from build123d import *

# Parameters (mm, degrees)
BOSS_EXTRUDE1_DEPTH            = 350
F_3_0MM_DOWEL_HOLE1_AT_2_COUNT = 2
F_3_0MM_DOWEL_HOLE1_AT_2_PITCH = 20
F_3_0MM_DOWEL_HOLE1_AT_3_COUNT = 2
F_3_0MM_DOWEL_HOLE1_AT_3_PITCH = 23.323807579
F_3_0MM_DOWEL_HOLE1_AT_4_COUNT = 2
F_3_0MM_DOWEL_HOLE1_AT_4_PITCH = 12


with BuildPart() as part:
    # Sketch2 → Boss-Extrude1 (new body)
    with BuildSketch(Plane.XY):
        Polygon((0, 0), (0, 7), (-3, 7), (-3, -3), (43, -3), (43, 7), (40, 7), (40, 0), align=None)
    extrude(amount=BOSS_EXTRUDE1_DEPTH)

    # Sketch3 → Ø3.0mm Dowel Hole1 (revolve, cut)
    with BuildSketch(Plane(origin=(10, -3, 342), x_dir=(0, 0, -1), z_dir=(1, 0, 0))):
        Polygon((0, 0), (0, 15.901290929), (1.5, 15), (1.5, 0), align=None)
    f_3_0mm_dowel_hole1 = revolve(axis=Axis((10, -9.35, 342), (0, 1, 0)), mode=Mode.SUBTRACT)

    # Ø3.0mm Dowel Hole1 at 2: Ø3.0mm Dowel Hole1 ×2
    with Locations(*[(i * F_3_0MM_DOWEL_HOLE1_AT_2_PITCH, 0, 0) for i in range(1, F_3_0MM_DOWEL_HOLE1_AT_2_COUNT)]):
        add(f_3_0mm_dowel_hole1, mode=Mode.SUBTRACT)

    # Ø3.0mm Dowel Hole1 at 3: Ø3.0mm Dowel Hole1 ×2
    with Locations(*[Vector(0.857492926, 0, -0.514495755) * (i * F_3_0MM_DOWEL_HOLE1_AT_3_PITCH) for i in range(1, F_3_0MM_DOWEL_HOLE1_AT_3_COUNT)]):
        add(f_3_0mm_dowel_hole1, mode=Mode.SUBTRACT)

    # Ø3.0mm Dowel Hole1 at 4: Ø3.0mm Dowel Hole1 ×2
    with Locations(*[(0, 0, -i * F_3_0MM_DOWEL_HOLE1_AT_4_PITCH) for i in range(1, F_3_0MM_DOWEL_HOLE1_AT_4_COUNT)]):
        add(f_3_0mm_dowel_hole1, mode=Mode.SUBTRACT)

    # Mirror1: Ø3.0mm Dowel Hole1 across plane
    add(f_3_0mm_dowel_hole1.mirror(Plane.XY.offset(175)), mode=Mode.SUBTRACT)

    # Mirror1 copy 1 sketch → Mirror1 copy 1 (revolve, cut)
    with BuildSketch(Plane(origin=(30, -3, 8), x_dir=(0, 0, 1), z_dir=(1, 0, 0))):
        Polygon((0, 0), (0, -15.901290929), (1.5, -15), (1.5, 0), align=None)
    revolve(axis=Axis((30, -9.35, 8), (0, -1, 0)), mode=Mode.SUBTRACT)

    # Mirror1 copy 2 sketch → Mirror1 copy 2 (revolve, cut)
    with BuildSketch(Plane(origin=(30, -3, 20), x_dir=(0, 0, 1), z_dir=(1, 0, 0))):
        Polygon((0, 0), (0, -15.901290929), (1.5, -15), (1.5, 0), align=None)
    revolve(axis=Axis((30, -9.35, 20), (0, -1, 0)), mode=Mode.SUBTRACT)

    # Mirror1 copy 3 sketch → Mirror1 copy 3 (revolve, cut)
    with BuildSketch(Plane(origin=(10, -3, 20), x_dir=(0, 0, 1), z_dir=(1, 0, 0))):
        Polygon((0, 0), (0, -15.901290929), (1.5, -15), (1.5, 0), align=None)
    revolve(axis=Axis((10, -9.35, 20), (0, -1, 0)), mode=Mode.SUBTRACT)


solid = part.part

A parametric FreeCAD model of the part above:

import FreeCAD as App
import Part
import Sketcher
Q = App.Units.Quantity

doc = App.newDocument("Part")
body = doc.addObject("PartDesign::Body", "Body")

# Sketch on XY plane
sketch1 = body.newObject("Sketcher::SketchObject", "Sketch")
sketch1.AttachmentSupport = (doc.getObject("XY_Plane"), [""])
sketch1.MapMode = "FlatFace"
sketch1.addGeometry([
    Part.LineSegment(App.Vector(0, 0, 0), App.Vector(0, 7, 0)),  # 0
    Part.LineSegment(App.Vector(0, 7, 0), App.Vector(-3, 7, 0)),  # 1
    Part.LineSegment(App.Vector(-3, 7, 0), App.Vector(-3, -3, 0)),  # 2
    Part.LineSegment(App.Vector(-3, -3, 0), App.Vector(43, -3, 0)),  # 3
    Part.LineSegment(App.Vector(43, -3, 0), App.Vector(43, 7, 0)),  # 4
    Part.LineSegment(App.Vector(43, 7, 0), App.Vector(40, 7, 0)),  # 5
    Part.LineSegment(App.Vector(40, 7, 0), App.Vector(40, 0, 0)),  # 6
    Part.LineSegment(App.Vector(40, 0, 0), App.Vector(0, 0, 0)),  # 7
], False)
sketch1.addConstraint([
    Sketcher.Constraint("Coincident", 0, 2, 1, 1),
    Sketcher.Constraint("Coincident", 1, 2, 2, 1),
    Sketcher.Constraint("Coincident", 2, 2, 3, 1),
    Sketcher.Constraint("Coincident", 3, 2, 4, 1),
    Sketcher.Constraint("Coincident", 4, 2, 5, 1),
    Sketcher.Constraint("Coincident", 5, 2, 6, 1),
    Sketcher.Constraint("Coincident", 6, 2, 7, 1),
    Sketcher.Constraint("Coincident", 7, 2, 0, 1),
    Sketcher.Constraint("Vertical", 0),
    Sketcher.Constraint("Horizontal", 1),
    Sketcher.Constraint("Vertical", 2),
    Sketcher.Constraint("Horizontal", 3),
    Sketcher.Constraint("Vertical", 4),
    Sketcher.Constraint("Horizontal", 5),
    Sketcher.Constraint("Vertical", 6),
    Sketcher.Constraint("Horizontal", 7),
    Sketcher.Constraint("Coincident", 7, 2, -1, 1),
    Sketcher.Constraint("Horizontal", 1, 2, 4, 2),
    Sketcher.Constraint("Equal", 1, 5),
    Sketcher.Constraint("DistanceX", 1, 2, 1, 1, Q("3 mm")),
    Sketcher.Constraint("DistanceX", 3, 1, 3, 2, Q("46 mm")),
    Sketcher.Constraint("DistanceY", 0, 1, 0, 2, Q("7 mm")),
    Sketcher.Constraint("DistanceY", 2, 2, 2, 1, Q("10 mm")),
])
pad1 = body.newObject("PartDesign::Pad", "Pad")
pad1.Profile = sketch1
pad1.Length = 350

# Sketch on YZ plane
sketch2 = body.newObject("Sketcher::SketchObject", "Sketch001")
sketch2.AttachmentSupport = (doc.getObject("YZ_Plane"), [""])
sketch2.MapMode = "FlatFace"
sketch2.AttachmentOffset = App.Placement(App.Vector(0, 0, 10), App.Rotation())
sketch2.addGeometry([
    Part.LineSegment(App.Vector(12.9, 342, 0), App.Vector(-3, 342, 0)),
    Part.LineSegment(App.Vector(-3, 342, 0), App.Vector(-3, 340.5, 0)),
    Part.LineSegment(App.Vector(-3, 340.5, 0), App.Vector(12, 340.5, 0)),
    Part.LineSegment(App.Vector(12, 340.5, 0), App.Vector(12.9, 342, 0)),
], False)
sketch2.addGeometry(Part.LineSegment(App.Vector(-3, 342, 0), App.Vector(12.9, 342, 0)), True)  # axis
sketch2.addConstraint([
    Sketcher.Constraint("Coincident", 0, 2, 1, 1),
    Sketcher.Constraint("Coincident", 1, 2, 2, 1),
    Sketcher.Constraint("Coincident", 2, 2, 3, 1),
    Sketcher.Constraint("Coincident", 3, 2, 0, 1),
    Sketcher.Constraint("Horizontal", 0),
    Sketcher.Constraint("Vertical", 1),
    Sketcher.Constraint("Horizontal", 2),
    Sketcher.Constraint("Horizontal", 4),
    Sketcher.Constraint("Coincident", 4, 1, 0, 2),
    Sketcher.Constraint("Equal", 0, 4),
    Sketcher.Constraint("DistanceX", 2, 1, 2, 2, Q("15 mm")),
    Sketcher.Constraint("Angle", 3, Q("59 deg")),
    Sketcher.Constraint("DistanceY", 1, 2, 1, 1, Q("1.5 mm")),
    Sketcher.Constraint("DistanceX", 0, 2, -1, 1, Q("3 mm")),
    Sketcher.Constraint("DistanceY", -1, 1, 0, 2, Q("342 mm")),
])
groove = body.newObject("PartDesign::Groove", "Groove")
groove.Profile = sketch2
groove.ReferenceAxis = (sketch2, ["Axis0"])
groove.Angle = 360
doc.recompute()

linearpattern = body.newObject("PartDesign::LinearPattern", "LinearPattern")
linearpattern.Originals = [groove]
linearpattern.Direction = (doc.getObject("X_Axis"), [""])
linearpattern.Mode = "offset"
linearpattern.Offset = 20
linearpattern.Occurrences = 2
body.Tip = linearpattern
doc.recompute()

datumline = body.newObject("PartDesign::Line", "DatumLine")
datumline.Placement = App.Placement(App.Vector(0, 0, 0), App.Rotation(App.Vector(0, 0, 1), App.Vector(0.857492926, 0, -0.514495755)))
linearpattern2 = body.newObject("PartDesign::LinearPattern", "LinearPattern001")
linearpattern2.Originals = [groove]
linearpattern2.Direction = (datumline, [""])
linearpattern2.Mode = "offset"
linearpattern2.Offset = 23.323808
linearpattern2.Occurrences = 2
body.Tip = linearpattern2
doc.recompute()

linearpattern3 = body.newObject("PartDesign::LinearPattern", "LinearPattern002")
linearpattern3.Originals = [groove]
linearpattern3.Direction = (doc.getObject("Z_Axis"), [""])
linearpattern3.Mode = "offset"
linearpattern3.Offset = 12
linearpattern3.Occurrences = 2
linearpattern3.Reversed = True
body.Tip = linearpattern3
doc.recompute()

datumplane = body.newObject("PartDesign::Plane", "DatumPlane")
datumplane.AttachmentSupport = (doc.getObject("XY_Plane"), [""])
datumplane.MapMode = "FlatFace"
datumplane.AttachmentOffset = App.Placement(App.Vector(0, 0, 175), App.Rotation())
mirrored = body.newObject("PartDesign::Mirrored", "Mirrored")
mirrored.Originals = [groove]
mirrored.MirrorPlane = (datumplane, [""])
body.Tip = mirrored

# Sketch on YZ plane
sketch3 = body.newObject("Sketcher::SketchObject", "Sketch002")
sketch3.AttachmentSupport = (doc.getObject("YZ_Plane"), [""])
sketch3.MapMode = "FlatFace"
sketch3.AttachmentOffset = App.Placement(App.Vector(0, 0, 30), App.Rotation())
sketch3.addGeometry([
    Part.LineSegment(App.Vector(-3, 8, 0), App.Vector(12.9, 8, 0)),
    Part.LineSegment(App.Vector(12.9, 8, 0), App.Vector(12, 9.5, 0)),
    Part.LineSegment(App.Vector(12, 9.5, 0), App.Vector(-3, 9.5, 0)),
    Part.LineSegment(App.Vector(-3, 9.5, 0), App.Vector(-3, 8, 0)),
], False)
sketch3.addGeometry(Part.LineSegment(App.Vector(12.9, 8, 0), App.Vector(-3, 8, 0)), True)  # axis
sketch3.addConstraint([
    Sketcher.Constraint("Coincident", 0, 2, 1, 1),
    Sketcher.Constraint("Coincident", 1, 2, 2, 1),
    Sketcher.Constraint("Coincident", 2, 2, 3, 1),
    Sketcher.Constraint("Coincident", 3, 2, 0, 1),
    Sketcher.Constraint("Horizontal", 0),
    Sketcher.Constraint("Horizontal", 2),
    Sketcher.Constraint("Vertical", 3),
    Sketcher.Constraint("Horizontal", 4),
    Sketcher.Constraint("Coincident", 4, 1, 0, 2),
    Sketcher.Constraint("Vertical", 2, 2, 4, 2),
    Sketcher.Constraint("DistanceX", 2, 2, 2, 1, Q("15 mm")),
    Sketcher.Constraint("Angle", 1, Q("121 deg")),
    Sketcher.Constraint("DistanceY", 3, 2, 3, 1, Q("1.5 mm")),
    Sketcher.Constraint("DistanceY", -1, 1, 0, 2, Q("8 mm")),
    Sketcher.Constraint("DistanceX", -1, 1, 1, 2, Q("12 mm")),
])
groove2 = body.newObject("PartDesign::Groove", "Groove001")
groove2.Profile = sketch3
groove2.ReferenceAxis = (sketch3, ["Axis0"])
groove2.Angle = 360

# Sketch on YZ plane
sketch4 = body.newObject("Sketcher::SketchObject", "Sketch003")
sketch4.AttachmentSupport = (doc.getObject("YZ_Plane"), [""])
sketch4.MapMode = "FlatFace"
sketch4.AttachmentOffset = App.Placement(App.Vector(0, 0, 30), App.Rotation())
sketch4.addGeometry([
    Part.LineSegment(App.Vector(-3, 20, 0), App.Vector(12.9, 20, 0)),
    Part.LineSegment(App.Vector(12.9, 20, 0), App.Vector(12, 21.5, 0)),
    Part.LineSegment(App.Vector(12, 21.5, 0), App.Vector(-3, 21.5, 0)),
    Part.LineSegment(App.Vector(-3, 21.5, 0), App.Vector(-3, 20, 0)),
], False)
sketch4.addGeometry(Part.LineSegment(App.Vector(12.9, 20, 0), App.Vector(-3, 20, 0)), True)  # axis
sketch4.addConstraint([
    Sketcher.Constraint("Coincident", 0, 2, 1, 1),
    Sketcher.Constraint("Coincident", 1, 2, 2, 1),
    Sketcher.Constraint("Coincident", 2, 2, 3, 1),
    Sketcher.Constraint("Coincident", 3, 2, 0, 1),
    Sketcher.Constraint("Horizontal", 0),
    Sketcher.Constraint("Horizontal", 2),
    Sketcher.Constraint("Vertical", 3),
    Sketcher.Constraint("Horizontal", 4),
    Sketcher.Constraint("Coincident", 4, 1, 0, 2),
    Sketcher.Constraint("Vertical", 2, 2, 4, 2),
    Sketcher.Constraint("DistanceX", 2, 2, 2, 1, Q("15 mm")),
    Sketcher.Constraint("Angle", 1, Q("121 deg")),
    Sketcher.Constraint("DistanceY", 3, 2, 3, 1, Q("1.5 mm")),
    Sketcher.Constraint("DistanceY", -1, 1, 0, 2, Q("20 mm")),
    Sketcher.Constraint("DistanceX", -1, 1, 1, 2, Q("12 mm")),
])
groove3 = body.newObject("PartDesign::Groove", "Groove002")
groove3.Profile = sketch4
groove3.ReferenceAxis = (sketch4, ["Axis0"])
groove3.Angle = 360

# Sketch on YZ plane
sketch5 = body.newObject("Sketcher::SketchObject", "Sketch004")
sketch5.AttachmentSupport = (doc.getObject("YZ_Plane"), [""])
sketch5.MapMode = "FlatFace"
sketch5.AttachmentOffset = App.Placement(App.Vector(0, 0, 10), App.Rotation())
sketch5.addGeometry([
    Part.LineSegment(App.Vector(-3, 20, 0), App.Vector(12.9, 20, 0)),
    Part.LineSegment(App.Vector(12.9, 20, 0), App.Vector(12, 21.5, 0)),
    Part.LineSegment(App.Vector(12, 21.5, 0), App.Vector(-3, 21.5, 0)),
    Part.LineSegment(App.Vector(-3, 21.5, 0), App.Vector(-3, 20, 0)),
], False)
sketch5.addGeometry(Part.LineSegment(App.Vector(12.9, 20, 0), App.Vector(-3, 20, 0)), True)  # axis
sketch5.addConstraint([
    Sketcher.Constraint("Coincident", 0, 2, 1, 1),
    Sketcher.Constraint("Coincident", 1, 2, 2, 1),
    Sketcher.Constraint("Coincident", 2, 2, 3, 1),
    Sketcher.Constraint("Coincident", 3, 2, 0, 1),
    Sketcher.Constraint("Horizontal", 0),
    Sketcher.Constraint("Horizontal", 2),
    Sketcher.Constraint("Vertical", 3),
    Sketcher.Constraint("Horizontal", 4),
    Sketcher.Constraint("Coincident", 4, 1, 0, 2),
    Sketcher.Constraint("Vertical", 2, 2, 4, 2),
    Sketcher.Constraint("DistanceX", 2, 2, 2, 1, Q("15 mm")),
    Sketcher.Constraint("Angle", 1, Q("121 deg")),
    Sketcher.Constraint("DistanceY", 3, 2, 3, 1, Q("1.5 mm")),
    Sketcher.Constraint("DistanceY", -1, 1, 0, 2, Q("20 mm")),
    Sketcher.Constraint("DistanceX", -1, 1, 1, 2, Q("12 mm")),
])
groove4 = body.newObject("PartDesign::Groove", "Groove003")
groove4.Profile = sketch5
groove4.ReferenceAxis = (sketch5, ["Axis0"])
groove4.Angle = 360

doc.recompute()
